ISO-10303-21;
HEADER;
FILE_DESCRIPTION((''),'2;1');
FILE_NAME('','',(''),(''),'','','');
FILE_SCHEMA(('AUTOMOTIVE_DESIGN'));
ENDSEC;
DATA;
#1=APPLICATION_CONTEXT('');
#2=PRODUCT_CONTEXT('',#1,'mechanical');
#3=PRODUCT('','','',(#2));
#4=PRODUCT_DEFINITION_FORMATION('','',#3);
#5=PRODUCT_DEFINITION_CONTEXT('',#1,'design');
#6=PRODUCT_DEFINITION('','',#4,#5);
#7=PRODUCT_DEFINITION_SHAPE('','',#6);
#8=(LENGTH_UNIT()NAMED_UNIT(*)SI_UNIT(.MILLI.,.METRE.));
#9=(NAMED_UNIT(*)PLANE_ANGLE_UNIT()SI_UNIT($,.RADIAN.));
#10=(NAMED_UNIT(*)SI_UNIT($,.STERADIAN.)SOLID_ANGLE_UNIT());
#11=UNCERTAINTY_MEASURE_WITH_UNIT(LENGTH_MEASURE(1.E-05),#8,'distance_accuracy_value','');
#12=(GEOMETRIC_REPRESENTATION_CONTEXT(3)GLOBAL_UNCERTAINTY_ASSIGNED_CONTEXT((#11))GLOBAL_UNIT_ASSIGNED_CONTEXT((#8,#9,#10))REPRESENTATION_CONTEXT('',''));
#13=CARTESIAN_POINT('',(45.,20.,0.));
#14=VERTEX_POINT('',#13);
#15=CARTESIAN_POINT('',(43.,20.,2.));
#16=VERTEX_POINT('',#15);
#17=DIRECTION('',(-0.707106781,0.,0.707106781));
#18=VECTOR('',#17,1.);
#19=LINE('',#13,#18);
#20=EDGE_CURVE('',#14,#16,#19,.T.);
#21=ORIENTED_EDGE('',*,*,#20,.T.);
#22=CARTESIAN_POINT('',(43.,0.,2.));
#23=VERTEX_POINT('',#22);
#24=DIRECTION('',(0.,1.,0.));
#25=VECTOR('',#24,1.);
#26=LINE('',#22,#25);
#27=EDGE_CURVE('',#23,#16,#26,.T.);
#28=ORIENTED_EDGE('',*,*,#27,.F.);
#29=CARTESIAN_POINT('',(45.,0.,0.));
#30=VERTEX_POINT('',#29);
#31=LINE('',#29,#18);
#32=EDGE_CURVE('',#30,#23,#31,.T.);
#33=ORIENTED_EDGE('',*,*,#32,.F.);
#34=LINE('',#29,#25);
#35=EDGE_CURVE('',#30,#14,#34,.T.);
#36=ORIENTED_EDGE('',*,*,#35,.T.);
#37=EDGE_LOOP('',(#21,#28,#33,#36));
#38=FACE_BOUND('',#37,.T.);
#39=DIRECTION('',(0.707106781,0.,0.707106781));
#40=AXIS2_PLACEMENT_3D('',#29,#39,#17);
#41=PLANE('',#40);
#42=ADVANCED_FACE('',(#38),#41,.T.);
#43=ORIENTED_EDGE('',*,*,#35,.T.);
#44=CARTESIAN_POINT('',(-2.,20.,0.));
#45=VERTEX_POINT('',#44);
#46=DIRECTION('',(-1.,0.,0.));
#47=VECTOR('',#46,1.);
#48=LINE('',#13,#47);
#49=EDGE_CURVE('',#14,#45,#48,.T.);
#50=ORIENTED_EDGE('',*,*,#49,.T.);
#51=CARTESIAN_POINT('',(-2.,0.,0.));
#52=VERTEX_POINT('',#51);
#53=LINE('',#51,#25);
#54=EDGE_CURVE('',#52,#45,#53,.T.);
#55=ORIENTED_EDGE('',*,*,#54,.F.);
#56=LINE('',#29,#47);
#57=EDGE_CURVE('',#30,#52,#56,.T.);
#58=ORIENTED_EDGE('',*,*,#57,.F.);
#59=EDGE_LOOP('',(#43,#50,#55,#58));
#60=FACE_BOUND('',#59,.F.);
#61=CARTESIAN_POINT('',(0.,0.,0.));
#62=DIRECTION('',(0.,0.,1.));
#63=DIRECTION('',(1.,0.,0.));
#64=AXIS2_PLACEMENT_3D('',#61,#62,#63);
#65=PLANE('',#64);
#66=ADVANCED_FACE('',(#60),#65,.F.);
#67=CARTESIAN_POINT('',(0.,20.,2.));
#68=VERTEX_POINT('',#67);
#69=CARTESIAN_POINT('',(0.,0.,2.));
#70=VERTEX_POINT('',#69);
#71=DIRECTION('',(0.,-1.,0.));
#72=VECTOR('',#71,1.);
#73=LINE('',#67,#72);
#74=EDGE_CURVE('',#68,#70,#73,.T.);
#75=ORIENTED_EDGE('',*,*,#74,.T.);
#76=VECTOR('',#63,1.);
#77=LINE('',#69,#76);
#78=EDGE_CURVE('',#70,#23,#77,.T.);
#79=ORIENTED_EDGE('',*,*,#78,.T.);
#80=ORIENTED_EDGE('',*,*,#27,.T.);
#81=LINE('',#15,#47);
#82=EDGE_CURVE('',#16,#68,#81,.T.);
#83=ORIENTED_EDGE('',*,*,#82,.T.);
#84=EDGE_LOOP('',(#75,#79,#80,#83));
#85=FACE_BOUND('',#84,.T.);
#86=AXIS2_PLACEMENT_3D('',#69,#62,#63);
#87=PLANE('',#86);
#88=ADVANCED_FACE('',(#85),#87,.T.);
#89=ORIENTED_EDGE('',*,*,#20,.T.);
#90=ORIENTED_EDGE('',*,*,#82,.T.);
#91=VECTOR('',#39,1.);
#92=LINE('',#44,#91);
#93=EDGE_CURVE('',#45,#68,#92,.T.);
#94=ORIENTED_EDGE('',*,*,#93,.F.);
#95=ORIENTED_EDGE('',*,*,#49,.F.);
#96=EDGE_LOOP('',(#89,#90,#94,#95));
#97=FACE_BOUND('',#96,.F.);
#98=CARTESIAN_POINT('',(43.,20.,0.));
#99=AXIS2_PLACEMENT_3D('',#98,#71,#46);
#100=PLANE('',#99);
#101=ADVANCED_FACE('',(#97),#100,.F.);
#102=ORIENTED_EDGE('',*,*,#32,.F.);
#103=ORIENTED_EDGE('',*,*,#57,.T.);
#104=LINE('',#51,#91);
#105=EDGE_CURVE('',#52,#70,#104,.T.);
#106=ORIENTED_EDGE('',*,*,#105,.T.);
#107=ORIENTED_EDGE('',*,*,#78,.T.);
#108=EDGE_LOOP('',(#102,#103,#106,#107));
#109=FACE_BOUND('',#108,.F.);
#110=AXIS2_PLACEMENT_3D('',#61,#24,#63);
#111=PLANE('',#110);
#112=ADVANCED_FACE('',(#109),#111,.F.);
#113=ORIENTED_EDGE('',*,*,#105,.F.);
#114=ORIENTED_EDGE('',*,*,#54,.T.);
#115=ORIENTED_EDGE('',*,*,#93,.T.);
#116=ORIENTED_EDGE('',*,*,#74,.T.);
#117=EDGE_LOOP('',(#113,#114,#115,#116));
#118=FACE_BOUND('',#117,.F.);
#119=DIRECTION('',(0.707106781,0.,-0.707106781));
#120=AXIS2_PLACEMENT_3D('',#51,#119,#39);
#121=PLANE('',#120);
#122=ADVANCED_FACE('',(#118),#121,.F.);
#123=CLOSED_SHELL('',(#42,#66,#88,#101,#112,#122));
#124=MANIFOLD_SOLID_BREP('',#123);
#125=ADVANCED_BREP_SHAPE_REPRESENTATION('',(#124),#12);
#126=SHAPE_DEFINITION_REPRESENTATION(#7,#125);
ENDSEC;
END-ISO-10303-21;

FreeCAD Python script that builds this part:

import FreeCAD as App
import Part
import Sketcher


def add_polygon(sketch, points):
    """Adds a closed chain of lines whose ends are joined by coincident constraints."""
    first, n = sketch.GeometryCount, len(points)
    for a, b in zip(points, points[1:] + points[:1]):
        sketch.addGeometry(Part.LineSegment(App.Vector(*a, 0), App.Vector(*b, 0)), False)
    for i in range(n):
        sketch.addConstraint(Sketcher.Constraint("Coincident", first + i, 2, first + (i + 1) % n, 1))

doc = App.newDocument("Part")
params = doc.addObject("Spreadsheet::Sheet", "Params")
for row, (alias, value) in enumerate([
    ("sketch1_width", "43 mm"),
    ("sketch1_height", "20 mm"),
    ("pad1_length", "2 mm"),
    ("sketch2_width", "2 mm"),
    ("pad2_length", "20 mm"),
], start=1):
    params.set(f"A{row}", alias)
    params.set(f"B{row}", "=" + value)
    params.setAlias(f"B{row}", alias)

body = doc.addObject("PartDesign::Body", "Body")

sketch1 = body.newObject("Sketcher::SketchObject", "Sketch")
sketch1.AttachmentSupport = (doc.getObject("XY_Plane"), [""])
sketch1.MapMode = "FlatFace"
add_polygon(sketch1, [(0, 20), (0, 0), (43, 0), (43, 20)])
sketch1.addConstraint(Sketcher.Constraint("Vertical", 0))
sketch1.addConstraint(Sketcher.Constraint("Horizontal", 1))
sketch1.addConstraint(Sketcher.Constraint("Vertical", 2))
sketch1.addConstraint(Sketcher.Constraint("Horizontal", 3))
sketch1.addConstraint(Sketcher.Constraint("Coincident", 0, 2, -1, 1))
sketch1.addConstraint(Sketcher.Constraint("DistanceX", 1, 1, 1, 2, 43.0))
sketch1.addConstraint(Sketcher.Constraint("DistanceY", 0, 2, 0, 1, 20.0))
sketch1.setExpression("Constraints[9]", "Params.sketch1_width")
sketch1.setExpression("Constraints[10]", "Params.sketch1_height")
pad1 = body.newObject("PartDesign::Pad", "Pad")
pad1.Profile = sketch1
pad1.setExpression("Length", "Params.pad1_length")

sketch2 = body.newObject("Sketcher::SketchObject", "Sketch001")
sketch2.AttachmentSupport = (doc.getObject("XZ_Plane"), [""])
sketch2.MapMode = "FlatFace"
add_polygon(sketch2, [(43, 2), (43, 0), (45, 0)])
add_polygon(sketch2, [(-2, 0), (0, 0), (0, 2)])
sketch2.addConstraint(Sketcher.Constraint("Vertical", 0))
sketch2.addConstraint(Sketcher.Constraint("Horizontal", 1))
sketch2.addConstraint(Sketcher.Constraint("Horizontal", 3))
sketch2.addConstraint(Sketcher.Constraint("Vertical", 4))
sketch2.addConstraint(Sketcher.Constraint("Coincident", 3, 2, -1, 1))
sketch2.addConstraint(Sketcher.Constraint("PointOnObject", 0, 2, -1))
sketch2.addConstraint(Sketcher.Constraint("Perpendicular", 2, 5))
sketch2.addConstraint(Sketcher.Constraint("Horizontal", 2, 2, 4, 2))
sketch2.addConstraint(Sketcher.Constraint("Equal", 1, 3))
sketch2.addConstraint(Sketcher.Constraint("DistanceX", 1, 1, 1, 2, 2.0))
sketch2.addConstraint(Sketcher.Constraint("DistanceX", -1, 1, 0, 2, 43.0))
sketch2.setExpression("Constraints[15]", "Params.sketch2_width")
pad2 = body.newObject("PartDesign::Pad", "Pad001")
pad2.Profile = sketch2
pad2.setExpression("Length", "Params.pad2_length")
pad2.Reversed = True

doc.recompute()
